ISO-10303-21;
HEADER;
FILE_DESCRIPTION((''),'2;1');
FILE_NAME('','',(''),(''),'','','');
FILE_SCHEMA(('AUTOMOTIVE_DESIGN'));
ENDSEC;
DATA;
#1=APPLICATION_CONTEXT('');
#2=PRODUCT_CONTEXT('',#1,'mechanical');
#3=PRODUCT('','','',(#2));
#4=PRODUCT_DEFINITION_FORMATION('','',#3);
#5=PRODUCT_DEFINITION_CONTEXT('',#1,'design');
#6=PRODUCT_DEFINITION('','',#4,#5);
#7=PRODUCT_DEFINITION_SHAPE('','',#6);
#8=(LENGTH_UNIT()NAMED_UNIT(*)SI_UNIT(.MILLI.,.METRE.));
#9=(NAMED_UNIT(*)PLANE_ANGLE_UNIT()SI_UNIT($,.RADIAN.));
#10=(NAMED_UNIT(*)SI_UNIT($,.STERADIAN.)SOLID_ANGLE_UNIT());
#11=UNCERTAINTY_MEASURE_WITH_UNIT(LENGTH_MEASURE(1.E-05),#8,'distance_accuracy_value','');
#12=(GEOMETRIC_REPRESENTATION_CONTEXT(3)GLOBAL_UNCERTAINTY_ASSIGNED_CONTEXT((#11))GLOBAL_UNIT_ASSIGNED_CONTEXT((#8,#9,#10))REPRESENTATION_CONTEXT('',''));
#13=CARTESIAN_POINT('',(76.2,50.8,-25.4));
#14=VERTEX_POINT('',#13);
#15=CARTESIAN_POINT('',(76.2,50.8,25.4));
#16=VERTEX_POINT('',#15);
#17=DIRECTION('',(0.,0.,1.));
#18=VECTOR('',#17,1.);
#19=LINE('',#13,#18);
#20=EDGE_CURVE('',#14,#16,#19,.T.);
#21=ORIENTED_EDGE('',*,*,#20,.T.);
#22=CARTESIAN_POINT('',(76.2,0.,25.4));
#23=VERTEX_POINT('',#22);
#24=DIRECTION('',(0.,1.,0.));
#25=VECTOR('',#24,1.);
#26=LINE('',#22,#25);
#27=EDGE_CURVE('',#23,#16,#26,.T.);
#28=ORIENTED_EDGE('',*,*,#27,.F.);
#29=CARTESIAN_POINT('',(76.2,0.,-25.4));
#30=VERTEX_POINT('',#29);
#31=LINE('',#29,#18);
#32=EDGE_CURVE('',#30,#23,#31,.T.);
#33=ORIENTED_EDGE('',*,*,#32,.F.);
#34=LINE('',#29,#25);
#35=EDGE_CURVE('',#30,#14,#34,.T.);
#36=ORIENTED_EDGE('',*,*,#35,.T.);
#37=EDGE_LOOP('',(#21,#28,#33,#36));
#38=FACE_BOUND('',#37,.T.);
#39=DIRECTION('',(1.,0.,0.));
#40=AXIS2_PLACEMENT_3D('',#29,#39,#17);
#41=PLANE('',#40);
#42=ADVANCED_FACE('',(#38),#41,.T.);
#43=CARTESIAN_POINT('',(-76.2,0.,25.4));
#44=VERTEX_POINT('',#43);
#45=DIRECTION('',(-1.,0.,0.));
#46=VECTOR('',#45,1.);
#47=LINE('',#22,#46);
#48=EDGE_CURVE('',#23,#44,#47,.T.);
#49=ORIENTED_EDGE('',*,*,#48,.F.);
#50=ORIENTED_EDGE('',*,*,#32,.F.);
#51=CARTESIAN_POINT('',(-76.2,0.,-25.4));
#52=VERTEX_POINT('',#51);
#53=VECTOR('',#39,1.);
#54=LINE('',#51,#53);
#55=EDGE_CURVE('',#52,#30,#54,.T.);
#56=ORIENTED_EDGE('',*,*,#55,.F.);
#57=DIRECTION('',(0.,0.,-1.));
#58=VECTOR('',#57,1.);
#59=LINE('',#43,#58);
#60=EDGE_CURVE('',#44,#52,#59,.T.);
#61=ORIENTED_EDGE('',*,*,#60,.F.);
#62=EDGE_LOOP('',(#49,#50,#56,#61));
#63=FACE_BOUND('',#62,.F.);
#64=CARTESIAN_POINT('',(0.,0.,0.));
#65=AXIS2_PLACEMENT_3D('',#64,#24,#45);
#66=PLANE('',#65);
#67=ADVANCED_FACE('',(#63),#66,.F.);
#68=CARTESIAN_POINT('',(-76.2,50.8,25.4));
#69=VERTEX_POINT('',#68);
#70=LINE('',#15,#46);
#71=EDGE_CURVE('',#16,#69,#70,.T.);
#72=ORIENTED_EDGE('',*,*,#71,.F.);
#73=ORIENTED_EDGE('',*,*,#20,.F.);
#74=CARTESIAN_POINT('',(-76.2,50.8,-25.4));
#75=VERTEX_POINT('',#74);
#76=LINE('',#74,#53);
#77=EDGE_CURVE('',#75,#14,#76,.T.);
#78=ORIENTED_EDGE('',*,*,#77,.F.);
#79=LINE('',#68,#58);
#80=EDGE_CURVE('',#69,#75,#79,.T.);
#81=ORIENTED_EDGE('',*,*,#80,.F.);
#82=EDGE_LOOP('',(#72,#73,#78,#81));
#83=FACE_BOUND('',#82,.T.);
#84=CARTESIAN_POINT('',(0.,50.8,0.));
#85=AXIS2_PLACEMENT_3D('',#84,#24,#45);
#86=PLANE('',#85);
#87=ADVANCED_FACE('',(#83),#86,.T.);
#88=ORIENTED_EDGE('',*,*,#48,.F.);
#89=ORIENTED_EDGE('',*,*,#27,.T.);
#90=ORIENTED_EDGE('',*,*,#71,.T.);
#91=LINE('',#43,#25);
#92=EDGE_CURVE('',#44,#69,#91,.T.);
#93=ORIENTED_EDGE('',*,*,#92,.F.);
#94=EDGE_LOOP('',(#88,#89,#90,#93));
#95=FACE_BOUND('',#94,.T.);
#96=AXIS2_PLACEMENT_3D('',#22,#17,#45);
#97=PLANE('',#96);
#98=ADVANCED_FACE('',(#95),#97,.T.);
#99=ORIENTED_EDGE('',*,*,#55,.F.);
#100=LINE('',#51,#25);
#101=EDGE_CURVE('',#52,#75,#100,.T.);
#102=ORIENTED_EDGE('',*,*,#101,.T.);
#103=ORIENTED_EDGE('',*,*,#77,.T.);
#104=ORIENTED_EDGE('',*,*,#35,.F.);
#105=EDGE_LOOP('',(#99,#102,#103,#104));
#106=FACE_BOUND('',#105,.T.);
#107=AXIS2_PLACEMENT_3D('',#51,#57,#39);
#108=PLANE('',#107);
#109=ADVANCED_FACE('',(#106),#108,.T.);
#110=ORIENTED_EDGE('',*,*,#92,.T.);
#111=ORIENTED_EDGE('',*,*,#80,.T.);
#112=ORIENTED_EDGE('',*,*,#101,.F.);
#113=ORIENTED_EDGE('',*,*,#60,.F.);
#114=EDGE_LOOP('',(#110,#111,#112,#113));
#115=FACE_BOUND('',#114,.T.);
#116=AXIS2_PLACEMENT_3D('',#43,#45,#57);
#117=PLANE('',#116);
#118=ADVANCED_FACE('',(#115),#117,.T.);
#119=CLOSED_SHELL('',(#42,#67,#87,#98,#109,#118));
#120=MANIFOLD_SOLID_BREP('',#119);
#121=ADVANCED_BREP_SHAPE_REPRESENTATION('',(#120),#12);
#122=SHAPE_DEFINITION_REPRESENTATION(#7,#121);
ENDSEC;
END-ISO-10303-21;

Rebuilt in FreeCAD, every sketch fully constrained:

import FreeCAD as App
import Part
import Sketcher
Q = App.Units.Quantity


def add_polygon(sketch, points):
    """Adds a closed chain of lines whose ends are joined by coincident constraints."""
    first, n = sketch.GeometryCount, len(points)
    for a, b in zip(points, points[1:] + points[:1]):
        sketch.addGeometry(Part.LineSegment(App.Vector(*a, 0), App.Vector(*b, 0)), False)
    for i in range(n):
        sketch.addConstraint(Sketcher.Constraint("Coincident", first + i, 2, first + (i + 1) % n, 1))

doc = App.newDocument("Part")
body = doc.addObject("PartDesign::Body", "Body")

sketch1 = body.newObject("Sketcher::SketchObject", "Sketch")
sketch1.AttachmentSupport = (doc.getObject("XZ_Plane"), [""])
sketch1.MapMode = "FlatFace"
add_polygon(sketch1, [(-76.2, 25.4), (76.2, 25.4), (76.2, -25.4), (-76.2, -25.4)])
sketch1.addConstraint([
    Sketcher.Constraint("Horizontal", 0),
    Sketcher.Constraint("Vertical", 1),
    Sketcher.Constraint("Horizontal", 2),
    Sketcher.Constraint("Vertical", 3),
    Sketcher.Constraint("Symmetric", 0, 2, 2, 2, -1, 1),
    Sketcher.Constraint("DistanceX", 0, 1, 0, 2, Q("6 in")),
    Sketcher.Constraint("DistanceY", 1, 2, 1, 1, Q("2 in")),
])
pad1 = body.newObject("PartDesign::Pad", "Pad")
pad1.Profile = sketch1
pad1.Length = Q("2 in")
pad1.Reversed = True

doc.recompute()
